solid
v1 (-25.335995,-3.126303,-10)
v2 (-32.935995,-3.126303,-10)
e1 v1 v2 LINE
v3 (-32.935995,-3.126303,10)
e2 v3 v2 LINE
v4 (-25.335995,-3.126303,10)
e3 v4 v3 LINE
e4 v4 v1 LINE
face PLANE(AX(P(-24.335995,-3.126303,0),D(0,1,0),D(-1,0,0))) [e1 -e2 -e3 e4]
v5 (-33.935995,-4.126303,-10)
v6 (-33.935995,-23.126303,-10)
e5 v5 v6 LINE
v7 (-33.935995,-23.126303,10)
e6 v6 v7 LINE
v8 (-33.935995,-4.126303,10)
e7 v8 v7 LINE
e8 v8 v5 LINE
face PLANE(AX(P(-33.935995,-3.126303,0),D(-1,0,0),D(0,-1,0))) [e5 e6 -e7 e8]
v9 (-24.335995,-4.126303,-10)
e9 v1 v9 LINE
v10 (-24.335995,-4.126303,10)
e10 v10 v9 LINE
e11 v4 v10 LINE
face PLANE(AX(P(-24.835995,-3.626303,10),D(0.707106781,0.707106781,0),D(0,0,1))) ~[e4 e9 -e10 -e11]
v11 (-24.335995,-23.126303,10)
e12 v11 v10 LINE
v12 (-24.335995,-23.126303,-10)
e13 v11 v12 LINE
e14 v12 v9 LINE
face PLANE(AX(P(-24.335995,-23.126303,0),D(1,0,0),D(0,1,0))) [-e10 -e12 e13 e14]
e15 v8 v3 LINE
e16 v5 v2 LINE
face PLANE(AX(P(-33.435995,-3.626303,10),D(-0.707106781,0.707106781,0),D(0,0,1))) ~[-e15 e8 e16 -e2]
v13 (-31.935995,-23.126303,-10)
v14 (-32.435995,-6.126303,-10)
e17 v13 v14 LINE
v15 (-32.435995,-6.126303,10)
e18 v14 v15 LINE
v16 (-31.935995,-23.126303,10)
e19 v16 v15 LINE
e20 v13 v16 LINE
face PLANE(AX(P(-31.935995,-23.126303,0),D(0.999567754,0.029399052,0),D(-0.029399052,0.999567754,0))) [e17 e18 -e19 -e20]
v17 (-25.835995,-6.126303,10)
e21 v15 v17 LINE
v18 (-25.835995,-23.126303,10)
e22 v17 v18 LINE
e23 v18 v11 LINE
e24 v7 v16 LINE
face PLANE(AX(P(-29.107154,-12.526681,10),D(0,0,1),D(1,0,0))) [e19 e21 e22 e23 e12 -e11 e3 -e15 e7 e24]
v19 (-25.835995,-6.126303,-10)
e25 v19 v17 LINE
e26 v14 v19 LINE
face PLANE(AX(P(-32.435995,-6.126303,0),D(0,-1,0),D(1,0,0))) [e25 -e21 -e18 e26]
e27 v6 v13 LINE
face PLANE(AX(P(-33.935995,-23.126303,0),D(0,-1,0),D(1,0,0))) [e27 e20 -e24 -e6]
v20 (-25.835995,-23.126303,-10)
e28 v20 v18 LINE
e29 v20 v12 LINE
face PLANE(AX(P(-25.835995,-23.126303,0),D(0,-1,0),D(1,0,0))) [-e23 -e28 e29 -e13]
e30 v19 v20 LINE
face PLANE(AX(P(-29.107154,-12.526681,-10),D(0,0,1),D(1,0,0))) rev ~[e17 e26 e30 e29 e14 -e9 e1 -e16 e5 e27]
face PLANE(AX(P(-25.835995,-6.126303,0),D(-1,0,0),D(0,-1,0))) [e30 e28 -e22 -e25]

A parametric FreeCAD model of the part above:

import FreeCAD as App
import Part
import Sketcher


def edges_at(feature, points):
    """Names of the edges that pass closest to the given points."""
    edges = feature.Shape.Edges
    near = lambda p: min(range(len(edges)), key=lambda i: edges[i].distToShape(Part.Vertex(*p))[0])
    return sorted({f"Edge{near(p) + 1}" for p in points})


def add_polygon(sketch, points):
    """Adds a closed chain of lines whose ends are joined by coincident constraints."""
    first, n = sketch.GeometryCount, len(points)
    for a, b in zip(points, points[1:] + points[:1]):
        sketch.addGeometry(Part.LineSegment(App.Vector(*a, 0), App.Vector(*b, 0)), False)
    for i in range(n):
        sketch.addConstraint(Sketcher.Constraint("Coincident", first + i, 2, first + (i + 1) % n, 1))

doc = App.newDocument("Part")
body = doc.addObject("PartDesign::Body", "Body")

# Sketch on XY plane
sketch1 = body.newObject("Sketcher::SketchObject", "Sketch")
sketch1.AttachmentSupport = (doc.getObject("XY_Plane"), [""])
sketch1.MapMode = "FlatFace"
add_polygon(sketch1, [(-33.9, -3.1), (-33.9, -23.1), (-31.9, -23.1), (-32.4, -6.1), (-25.8, -6.1), (-25.8, -23.1), (-24.3, -23.1), (-24.3, -3.1)])  # lines 0-7
sketch1.addConstraint([
    Sketcher.Constraint("Vertical", 0),
    Sketcher.Constraint("Horizontal", 1),
    Sketcher.Constraint("Horizontal", 3),
    Sketcher.Constraint("Vertical", 4),
    Sketcher.Constraint("Horizontal", 5),
    Sketcher.Constraint("Vertical", 6),
    Sketcher.Constraint("Horizontal", 7),
    Sketcher.Constraint("Horizontal", 1, 2, 4, 2),
    Sketcher.Constraint("DistanceX", 1, 1, 1, 2, 2.0),
    Sketcher.Constraint("DistanceY", 0, 2, 0, 1, 20.0),
    Sketcher.Constraint("DistanceY", 4, 2, 4, 1, 17.0),
    Sketcher.Constraint("DistanceX", 3, 1, 3, 2, 6.6),
    Sketcher.Constraint("DistanceX", 5, 1, 5, 2, 1.5),
    Sketcher.Constraint("DistanceX", 7, 2, 7, 1, 9.6),
    Sketcher.Constraint("DistanceX", 0, 2, -1, 1, 33.935995),
    Sketcher.Constraint("DistanceY", 0, 2, -1, 1, 23.126303),
])
pad1 = body.newObject("PartDesign::Pad", "Pad")
pad1.Profile = sketch1
pad1.Length = 20
pad1.Midplane = True
doc.recompute()

chamfer = body.newObject("PartDesign::Chamfer", "Chamfer")
chamfer.Base = (pad1, edges_at(pad1, [(-33.936, -3.126, 0), (-24.336, -3.126, 0)]))
chamfer.Size = 1

doc.recompute()
